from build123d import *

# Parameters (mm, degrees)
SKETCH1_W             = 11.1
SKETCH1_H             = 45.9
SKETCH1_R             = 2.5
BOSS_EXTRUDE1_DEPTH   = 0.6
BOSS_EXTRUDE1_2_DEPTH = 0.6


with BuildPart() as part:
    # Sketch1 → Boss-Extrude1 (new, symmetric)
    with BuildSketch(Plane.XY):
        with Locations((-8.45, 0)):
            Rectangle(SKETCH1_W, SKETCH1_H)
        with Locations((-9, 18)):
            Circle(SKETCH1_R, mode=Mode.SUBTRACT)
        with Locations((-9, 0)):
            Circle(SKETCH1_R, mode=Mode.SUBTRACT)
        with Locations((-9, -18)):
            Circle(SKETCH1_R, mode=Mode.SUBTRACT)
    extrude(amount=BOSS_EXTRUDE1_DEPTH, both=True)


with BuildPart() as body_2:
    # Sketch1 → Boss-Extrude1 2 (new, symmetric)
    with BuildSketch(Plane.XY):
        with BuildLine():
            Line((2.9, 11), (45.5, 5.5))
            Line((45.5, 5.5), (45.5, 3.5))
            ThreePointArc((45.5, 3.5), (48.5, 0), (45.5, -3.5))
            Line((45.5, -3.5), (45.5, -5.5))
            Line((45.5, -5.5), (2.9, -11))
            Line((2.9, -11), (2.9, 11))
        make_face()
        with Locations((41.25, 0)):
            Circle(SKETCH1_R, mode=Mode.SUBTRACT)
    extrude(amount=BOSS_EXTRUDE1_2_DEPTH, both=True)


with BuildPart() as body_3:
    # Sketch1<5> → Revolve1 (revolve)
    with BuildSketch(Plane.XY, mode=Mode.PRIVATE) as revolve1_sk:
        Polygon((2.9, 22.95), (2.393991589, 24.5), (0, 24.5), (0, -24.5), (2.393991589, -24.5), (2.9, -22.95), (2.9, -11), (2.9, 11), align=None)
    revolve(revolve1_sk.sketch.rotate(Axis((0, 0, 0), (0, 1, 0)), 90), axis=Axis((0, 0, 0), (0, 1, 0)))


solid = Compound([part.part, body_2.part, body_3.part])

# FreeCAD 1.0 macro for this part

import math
import FreeCAD as App
import Part
import Sketcher


def add_polygon(sketch, points):
    """Adds a closed chain of lines whose ends are joined by coincident constraints."""
    first, n = sketch.GeometryCount, len(points)
    for a, b in zip(points, points[1:] + points[:1]):
        sketch.addGeometry(Part.LineSegment(App.Vector(*a, 0), App.Vector(*b, 0)), False)
    for i in range(n):
        sketch.addConstraint(Sketcher.Constraint("Coincident", first + i, 2, first + (i + 1) % n, 1))

doc = App.newDocument("Part")
body = doc.addObject("PartDesign::Body", "Body")

sketch1 = body.newObject("Sketcher::SketchObject", "Sketch")
sketch1.AttachmentSupport = (doc.getObject("XY_Plane"), [""])
sketch1.MapMode = "FlatFace"
add_polygon(sketch1, [(-14, 22.9), (-14, -22.9), (-2.9, -22.9), (-2.9, 22.9)])
sketch1.addGeometry(Part.Circle(App.Vector(-9, -18, 0), App.Vector(0, 0, 1), 2.5), False)
sketch1.addGeometry(Part.Circle(App.Vector(-9, 0, 0), App.Vector(0, 0, 1), 2.5), False)
sketch1.addGeometry(Part.Circle(App.Vector(-9, 18, 0), App.Vector(0, 0, 1), 2.5), False)
sketch1.addConstraint([
    Sketcher.Constraint("Vertical", 0),
    Sketcher.Constraint("Horizontal", 1),
    Sketcher.Constraint("Vertical", 2),
    Sketcher.Constraint("Horizontal", 3),
    Sketcher.Constraint("Equal", 4, 5),
    Sketcher.Constraint("Equal", 5, 6),
    Sketcher.Constraint("Symmetric", 4, 3, 6, 3, -1),
    Sketcher.Constraint("PointOnObject", 5, 3, -1),
    Sketcher.Constraint("Vertical", 4, 3, 5, 3),
    Sketcher.Constraint("Diameter", 4, 5.0),
    Sketcher.Constraint("DistanceX", 1, 1, 1, 2, 11.1),
    Sketcher.Constraint("DistanceY", 0, 2, 0, 1, 45.9),
    Sketcher.Constraint("DistanceX", 4, 3, -1, 1, 9.0),
    Sketcher.Constraint("DistanceY", 4, 3, -1, 1, 18.0),
    Sketcher.Constraint("DistanceX", 0, 2, -1, 1, 14.0),
    Sketcher.Constraint("DistanceY", 0, 2, -1, 1, 22.95),
])
pad1 = body.newObject("PartDesign::Pad", "Pad")
pad1.Profile = sketch1
pad1.Length = 1.2
pad1.Midplane = True
body2 = doc.addObject("PartDesign::Body", "Body001")

sketch2 = body2.newObject("Sketcher::SketchObject", "Sketch001")
sketch2.AttachmentSupport = (doc.getObject("XY_Plane001"), [""])
sketch2.MapMode = "FlatFace"
sketch2.addGeometry([
    Part.LineSegment(App.Vector(45.5, 5.5, 0), App.Vector(2.9, 11, 0)),
    Part.LineSegment(App.Vector(2.9, 11, 0), App.Vector(2.9, -11, 0)),
    Part.LineSegment(App.Vector(2.9, -11, 0), App.Vector(45.5, -5.5, 0)),
    Part.LineSegment(App.Vector(45.5, -5.5, 0), App.Vector(45.5, -3.5, 0)),
    Part.ArcOfCircle(Part.Circle(App.Vector(45, 0, 0), App.Vector(0, 0, 1), 3.5), math.radians(-81), math.radians(81)),
    Part.LineSegment(App.Vector(45.5, 3.5, 0), App.Vector(45.5, 5.5, 0)),
    Part.Circle(App.Vector(41.2, 0, 0), App.Vector(0, 0, 1), 2.5),
], False)
sketch2.addConstraint([
    Sketcher.Constraint("Coincident", 0, 2, 1, 1),
    Sketcher.Constraint("Coincident", 1, 2, 2, 1),
    Sketcher.Constraint("Coincident", 2, 2, 3, 1),
    Sketcher.Constraint("Coincident", 3, 2, 4, 1),
    Sketcher.Constraint("Coincident", 4, 2, 5, 1),
    Sketcher.Constraint("Coincident", 5, 2, 0, 1),
    Sketcher.Constraint("Vertical", 1),
    Sketcher.Constraint("Vertical", 3),
    Sketcher.Constraint("Vertical", 5),
    Sketcher.Constraint("Symmetric", 3, 2, 4, 2, -1),
    Sketcher.Constraint("PointOnObject", 6, 3, -1),
    Sketcher.Constraint("Equal", 3, 5),
    Sketcher.Constraint("Equal", 0, 2),
    Sketcher.Constraint("Diameter", 6, 5.0),
    Sketcher.Constraint("DistanceY", 1, 2, 1, 1, 22.0),
    Sketcher.Constraint("DistanceY", 3, 1, 3, 2, 2.0),
    Sketcher.Constraint("DistanceY", 3, 2, 4, 2, 7.0),
    Sketcher.Constraint("DistanceX", -1, 1, 0, 2, 2.9),
    Sketcher.Constraint("DistanceX", -1, 1, 2, 2, 45.5),
    Sketcher.Constraint("DistanceX", -1, 1, 6, 3, 41.25),
    Sketcher.Constraint("Radius", 4, 3.541667),
])
pad2 = body2.newObject("PartDesign::Pad", "Pad001")
pad2.Profile = sketch2
pad2.Length = 1.2
pad2.Midplane = True
body3 = doc.addObject("PartDesign::Body", "Body002")

sketch3 = body3.newObject("Sketcher::SketchObject", "Sketch002")
sketch3.AttachmentSupport = (doc.getObject("XY_Plane002"), [""])
sketch3.MapMode = "FlatFace"
add_polygon(sketch3, [(2.9, 22.9), (2.4, 24.5), (0, 24.5), (0, -24.5), (2.4, -24.5), (2.9, -22.9)])
sketch3.addConstraint([
    Sketcher.Constraint("Horizontal", 1),
    Sketcher.Constraint("Vertical", 2),
    Sketcher.Constraint("Horizontal", 3),
    Sketcher.Constraint("Vertical", 5),
    Sketcher.Constraint("Symmetric", 1, 2, 2, 2, -1, 1),
    Sketcher.Constraint("Vertical", 0, 2, 3, 2),
    Sketcher.Constraint("Equal", 0, 4),
    Sketcher.Constraint("DistanceY", 2, 2, 2, 1, 49.0),
    Sketcher.Constraint("DistanceY", 5, 1, 5, 2, 45.9),
    Sketcher.Constraint("DistanceX", -1, 1, 4, 2, 2.9),
    Sketcher.Constraint("DistanceX", 1, 2, 1, 1, 2.393992),
])
revolution = body3.newObject("PartDesign::Revolution", "Revolution")
revolution.Profile = sketch3
revolution.ReferenceAxis = (sketch3, ["V_Axis"])
revolution.Angle = 360

doc.recompute()
